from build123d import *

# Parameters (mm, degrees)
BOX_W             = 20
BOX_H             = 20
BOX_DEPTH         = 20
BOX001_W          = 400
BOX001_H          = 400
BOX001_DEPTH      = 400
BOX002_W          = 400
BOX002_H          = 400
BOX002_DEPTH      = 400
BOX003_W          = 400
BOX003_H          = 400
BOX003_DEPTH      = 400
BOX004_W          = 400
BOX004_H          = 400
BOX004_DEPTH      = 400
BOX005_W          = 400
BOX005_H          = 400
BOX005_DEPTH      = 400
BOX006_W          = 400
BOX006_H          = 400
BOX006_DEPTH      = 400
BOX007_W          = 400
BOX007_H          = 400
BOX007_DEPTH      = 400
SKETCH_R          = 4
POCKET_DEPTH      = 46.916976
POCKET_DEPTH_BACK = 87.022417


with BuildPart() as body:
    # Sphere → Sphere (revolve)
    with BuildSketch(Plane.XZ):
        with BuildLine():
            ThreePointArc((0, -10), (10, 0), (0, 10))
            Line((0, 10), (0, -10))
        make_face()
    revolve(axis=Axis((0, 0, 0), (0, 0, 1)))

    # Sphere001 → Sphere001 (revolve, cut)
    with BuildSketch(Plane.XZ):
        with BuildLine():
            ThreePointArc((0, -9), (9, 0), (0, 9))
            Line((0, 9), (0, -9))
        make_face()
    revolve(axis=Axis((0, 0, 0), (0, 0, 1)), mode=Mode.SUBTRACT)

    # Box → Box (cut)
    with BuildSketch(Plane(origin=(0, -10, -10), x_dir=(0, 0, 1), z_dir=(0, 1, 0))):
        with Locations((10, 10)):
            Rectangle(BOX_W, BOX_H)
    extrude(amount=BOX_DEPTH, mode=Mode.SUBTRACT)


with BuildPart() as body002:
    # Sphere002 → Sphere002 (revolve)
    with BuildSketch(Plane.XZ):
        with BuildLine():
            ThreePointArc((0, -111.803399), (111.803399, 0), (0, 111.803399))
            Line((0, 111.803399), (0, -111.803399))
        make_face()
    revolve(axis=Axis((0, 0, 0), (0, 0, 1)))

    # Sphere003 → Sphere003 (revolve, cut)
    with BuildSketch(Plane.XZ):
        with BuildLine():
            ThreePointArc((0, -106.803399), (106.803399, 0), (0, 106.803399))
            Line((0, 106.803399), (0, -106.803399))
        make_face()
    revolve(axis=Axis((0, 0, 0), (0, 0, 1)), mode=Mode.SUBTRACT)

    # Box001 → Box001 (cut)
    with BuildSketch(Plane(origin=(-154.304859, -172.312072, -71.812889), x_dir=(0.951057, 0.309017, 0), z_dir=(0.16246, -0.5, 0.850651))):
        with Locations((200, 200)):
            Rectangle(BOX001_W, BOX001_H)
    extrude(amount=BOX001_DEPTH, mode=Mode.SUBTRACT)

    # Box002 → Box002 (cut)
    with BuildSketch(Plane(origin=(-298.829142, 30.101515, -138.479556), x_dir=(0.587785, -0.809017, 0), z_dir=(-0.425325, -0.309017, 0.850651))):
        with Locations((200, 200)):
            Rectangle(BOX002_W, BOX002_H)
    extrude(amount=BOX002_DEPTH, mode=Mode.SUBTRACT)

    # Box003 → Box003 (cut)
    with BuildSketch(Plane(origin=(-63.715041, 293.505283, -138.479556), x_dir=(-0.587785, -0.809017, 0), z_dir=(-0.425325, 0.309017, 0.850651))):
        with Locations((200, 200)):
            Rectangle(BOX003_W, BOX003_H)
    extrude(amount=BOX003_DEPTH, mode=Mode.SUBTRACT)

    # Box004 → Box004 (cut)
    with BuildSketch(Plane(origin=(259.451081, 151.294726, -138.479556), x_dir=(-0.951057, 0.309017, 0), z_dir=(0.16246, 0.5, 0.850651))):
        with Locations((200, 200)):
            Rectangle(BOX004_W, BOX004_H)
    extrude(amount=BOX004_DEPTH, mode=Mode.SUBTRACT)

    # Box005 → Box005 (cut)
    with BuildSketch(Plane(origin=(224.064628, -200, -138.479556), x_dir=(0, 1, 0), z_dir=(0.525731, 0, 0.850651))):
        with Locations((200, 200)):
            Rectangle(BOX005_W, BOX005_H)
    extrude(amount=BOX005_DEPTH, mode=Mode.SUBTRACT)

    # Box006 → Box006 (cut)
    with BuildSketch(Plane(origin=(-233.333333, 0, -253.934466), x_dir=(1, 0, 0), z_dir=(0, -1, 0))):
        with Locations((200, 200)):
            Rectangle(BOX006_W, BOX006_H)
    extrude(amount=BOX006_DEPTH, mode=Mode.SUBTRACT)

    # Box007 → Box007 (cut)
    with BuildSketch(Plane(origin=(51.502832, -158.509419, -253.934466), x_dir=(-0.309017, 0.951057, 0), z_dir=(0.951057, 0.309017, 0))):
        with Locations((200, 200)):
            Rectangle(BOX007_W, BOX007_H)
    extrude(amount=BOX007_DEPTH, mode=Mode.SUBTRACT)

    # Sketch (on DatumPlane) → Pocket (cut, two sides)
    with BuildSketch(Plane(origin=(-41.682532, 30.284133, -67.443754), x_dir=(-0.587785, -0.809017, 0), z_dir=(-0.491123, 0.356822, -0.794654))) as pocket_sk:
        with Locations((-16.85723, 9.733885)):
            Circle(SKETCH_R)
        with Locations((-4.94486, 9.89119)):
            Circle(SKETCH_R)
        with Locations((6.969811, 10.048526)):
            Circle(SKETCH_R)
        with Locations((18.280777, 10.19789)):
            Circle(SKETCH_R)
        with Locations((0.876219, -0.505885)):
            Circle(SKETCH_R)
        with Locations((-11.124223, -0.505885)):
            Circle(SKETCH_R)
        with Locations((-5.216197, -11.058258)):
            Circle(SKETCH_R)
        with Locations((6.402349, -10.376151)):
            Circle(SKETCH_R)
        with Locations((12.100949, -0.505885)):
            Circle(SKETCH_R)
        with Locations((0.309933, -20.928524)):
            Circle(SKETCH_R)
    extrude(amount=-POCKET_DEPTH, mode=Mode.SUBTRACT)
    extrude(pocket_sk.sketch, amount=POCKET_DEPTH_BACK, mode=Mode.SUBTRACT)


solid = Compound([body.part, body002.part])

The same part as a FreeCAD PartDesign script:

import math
import FreeCAD as App
import Part
import Sketcher
from FreeCAD import Vector
Q = App.Units.Quantity


def add_polygon(sketch, points):
    """Adds a closed chain of lines whose ends are joined by coincident constraints."""
    first, n = sketch.GeometryCount, len(points)
    for a, b in zip(points, points[1:] + points[:1]):
        sketch.addGeometry(Part.LineSegment(App.Vector(*a, 0), App.Vector(*b, 0)), False)
    for i in range(n):
        sketch.addConstraint(Sketcher.Constraint("Coincident", first + i, 2, first + (i + 1) % n, 1))

doc = App.newDocument("Part")
body = doc.addObject("PartDesign::Body", "Body")

# Sketch on XZ plane
sketch1 = body.newObject("Sketcher::SketchObject", "Sketch")
sketch1.AttachmentSupport = (doc.getObject("XZ_Plane"), [""])
sketch1.MapMode = "FlatFace"
sketch1.addGeometry([
    Part.ArcOfCircle(Part.Circle(Vector(0, 0, 0), Vector(0, 0, 1), 10), math.radians(-90), math.radians(90)),
    Part.LineSegment(Vector(0, 10, 0), Vector(0, -10, 0)),
], False)
sketch1.addConstraint([
    Sketcher.Constraint("Coincident", 0, 1, 1, 2),
    Sketcher.Constraint("Coincident", 1, 1, 0, 2),
    Sketcher.Constraint("Vertical", 1),
    Sketcher.Constraint("Coincident", 0, 3, -1, 1),
    Sketcher.Constraint("PointOnObject", 0, 1, -2),
    Sketcher.Constraint("Radius", 0, Q("10 mm")),
])
revolution = body.newObject("PartDesign::Revolution", "Revolution")
revolution.Profile = sketch1
revolution.ReferenceAxis = (sketch1, ["V_Axis"])
revolution.Angle = 360

# Sketch on XZ plane
sketch2 = body.newObject("Sketcher::SketchObject", "Sketch001")
sketch2.AttachmentSupport = (doc.getObject("XZ_Plane"), [""])
sketch2.MapMode = "FlatFace"
sketch2.addGeometry([
    Part.ArcOfCircle(Part.Circle(Vector(0, 0, 0), Vector(0, 0, 1), 9), math.radians(-90), math.radians(90)),
    Part.LineSegment(Vector(0, 9, 0), Vector(0, -9, 0)),
], False)
sketch2.addConstraint([
    Sketcher.Constraint("Coincident", 0, 1, 1, 2),
    Sketcher.Constraint("Coincident", 1, 1, 0, 2),
    Sketcher.Constraint("Vertical", 1),
    Sketcher.Constraint("Coincident", 0, 3, -1, 1),
    Sketcher.Constraint("PointOnObject", 0, 1, -2),
    Sketcher.Constraint("Radius", 0, Q("9 mm")),
])
groove = body.newObject("PartDesign::Groove", "Groove")
groove.Profile = sketch2
groove.ReferenceAxis = (sketch2, ["V_Axis"])
groove.Angle = 360

# Sketch on XZ plane
sketch3 = body.newObject("Sketcher::SketchObject", "Sketch002")
sketch3.AttachmentSupport = (doc.getObject("XZ_Plane"), [""])
sketch3.MapMode = "FlatFace"
sketch3.AttachmentOffset = App.Placement(Vector(0, 0, 10), App.Rotation())
add_polygon(sketch3, [(20, -10), (0, -10), (0, 10), (20, 10)])  # lines 0-3
sketch3.addConstraint([
    Sketcher.Constraint("Horizontal", 0),
    Sketcher.Constraint("Vertical", 1),
    Sketcher.Constraint("Horizontal", 2),
    Sketcher.Constraint("Vertical", 3),
    Sketcher.Constraint("Symmetric", 0, 2, 1, 2, -1, 1),
    Sketcher.Constraint("Equal", 2, 1),
    Sketcher.Constraint("DistanceX", 0, 2, 0, 1, Q("20 mm")),
])
pocket1 = body.newObject("PartDesign::Pocket", "Pocket")
pocket1.Profile = sketch3
pocket1.Length = 20
body2 = doc.addObject("PartDesign::Body", "Body001")

# Sketch on XZ plane
sketch4 = body2.newObject("Sketcher::SketchObject", "Sketch003")
sketch4.AttachmentSupport = (doc.getObject("XZ_Plane001"), [""])
sketch4.MapMode = "FlatFace"
sketch4.addGeometry([
    Part.ArcOfCircle(Part.Circle(Vector(0, 0, 0), Vector(0, 0, 1), 111.803399), math.radians(-90), math.radians(90)),
    Part.LineSegment(Vector(0, 111.803399, 0), Vector(0, -111.803399, 0)),
], False)
sketch4.addConstraint([
    Sketcher.Constraint("Coincident", 0, 1, 1, 2),
    Sketcher.Constraint("Coincident", 1, 1, 0, 2),
    Sketcher.Constraint("Vertical", 1),
    Sketcher.Constraint("Coincident", 0, 3, -1, 1),
    Sketcher.Constraint("PointOnObject", 0, 1, -2),
    Sketcher.Constraint("Radius", 0, Q("111.803399 mm")),
])
revolution2 = body2.newObject("PartDesign::Revolution", "Revolution001")
revolution2.Profile = sketch4
revolution2.ReferenceAxis = (sketch4, ["V_Axis"])
revolution2.Angle = 360

# Sketch on XZ plane
sketch5 = body2.newObject("Sketcher::SketchObject", "Sketch004")
sketch5.AttachmentSupport = (doc.getObject("XZ_Plane001"), [""])
sketch5.MapMode = "FlatFace"
sketch5.addGeometry([
    Part.ArcOfCircle(Part.Circle(Vector(0, 0, 0), Vector(0, 0, 1), 106.803399), math.radians(-90), math.radians(90)),
    Part.LineSegment(Vector(0, 106.803399, 0), Vector(0, -106.803399, 0)),
], False)
sketch5.addConstraint([
    Sketcher.Constraint("Coincident", 0, 1, 1, 2),
    Sketcher.Constraint("Coincident", 1, 1, 0, 2),
    Sketcher.Constraint("Vertical", 1),
    Sketcher.Constraint("Coincident", 0, 3, -1, 1),
    Sketcher.Constraint("PointOnObject", 0, 1, -2),
    Sketcher.Constraint("Radius", 0, Q("106.803399 mm")),
])
groove2 = body2.newObject("PartDesign::Groove", "Groove001")
groove2.Profile = sketch5
groove2.ReferenceAxis = (sketch5, ["V_Axis"])
groove2.Angle = 360

# Sketch on an angled plane
sketch6 = body2.newObject("Sketcher::SketchObject", "Sketch005")
sketch6.Placement = App.Placement(Vector(-154.304859, -172.312072, -71.812889), App.Rotation(Vector(0.951056525, 0.309016967, -0.000000187), Vector(-0.262865449, 0.809017062, 0.52573106), Vector(0.16245997, -0.499999906, 0.85065084), "ZXY"))
add_polygon(sketch6, [(0, 400), (0, 0), (400, 0), (400, 400)])  # lines 0-3
sketch6.addConstraint([
    Sketcher.Constraint("Vertical", 0),
    Sketcher.Constraint("Horizontal", 1),
    Sketcher.Constraint("Vertical", 2),
    Sketcher.Constraint("Horizontal", 3),
    Sketcher.Constraint("Coincident", 0, 2, -1, 1),
    Sketcher.Constraint("Equal", 3, 0),
    Sketcher.Constraint("DistanceX", 1, 1, 1, 2, Q("400 mm")),
])
pocket2 = body2.newObject("PartDesign::Pocket", "Pocket001")
pocket2.Profile = sketch6
pocket2.Length = 400
pocket2.Reversed = True

# Sketch on an angled plane
sketch7 = body2.newObject("Sketcher::SketchObject", "Sketch006")
sketch7.Placement = App.Placement(Vector(-298.829142, 30.101515, -138.479556), App.Rotation(Vector(0.587785234, -0.809017008, -0.000000299), Vector(0.688191224, 0.499999973, 0.525730792), Vector(-0.425325003, -0.309017002, 0.850651006), "ZXY"))
add_polygon(sketch7, [(0, 400), (0, 0), (400, 0), (400, 400)])  # lines 0-3
sketch7.addConstraint([
    Sketcher.Constraint("Vertical", 0),
    Sketcher.Constraint("Horizontal", 1),
    Sketcher.Constraint("Vertical", 2),
    Sketcher.Constraint("Horizontal", 3),
    Sketcher.Constraint("Coincident", 0, 2, -1, 1),
    Sketcher.Constraint("Equal", 3, 0),
    Sketcher.Constraint("DistanceX", 1, 1, 1, 2, Q("400 mm")),
])
pocket3 = body2.newObject("PartDesign::Pocket", "Pocket002")
pocket3.Profile = sketch7
pocket3.Length = 400
pocket3.Reversed = True

# Sketch on an angled plane
sketch8 = body2.newObject("Sketcher::SketchObject", "Sketch007")
sketch8.Placement = App.Placement(Vector(-63.715041, 293.505283, -138.479556), App.Rotation(Vector(-0.587785234, -0.809017008, 0.000000299), Vector(0.688191224, -0.499999973, 0.525730792), Vector(-0.425325003, 0.309017002, 0.850651006), "ZXY"))
add_polygon(sketch8, [(0, 400), (0, 0), (400, 0), (400, 400)])  # lines 0-3
sketch8.addConstraint([
    Sketcher.Constraint("Vertical", 0),
    Sketcher.Constraint("Horizontal", 1),
    Sketcher.Constraint("Vertical", 2),
    Sketcher.Constraint("Horizontal", 3),
    Sketcher.Constraint("Coincident", 0, 2, -1, 1),
    Sketcher.Constraint("Equal", 3, 0),
    Sketcher.Constraint("DistanceX", 1, 1, 1, 2, Q("400 mm")),
])
pocket4 = body2.newObject("PartDesign::Pocket", "Pocket003")
pocket4.Profile = sketch8
pocket4.Length = 400
pocket4.Reversed = True

# Sketch on an angled plane
sketch9 = body2.newObject("Sketcher::SketchObject", "Sketch008")
sketch9.Placement = App.Placement(Vector(259.451081, 151.294726, -138.479556), App.Rotation(Vector(-0.951056525, 0.309016967, 0.000000187), Vector(-0.262865449, -0.809017062, 0.52573106), Vector(0.16245997, 0.499999906, 0.85065084), "ZXY"))
add_polygon(sketch9, [(0, 400), (0, 0), (400, 0), (400, 400)])  # lines 0-3
sketch9.addConstraint([
    Sketcher.Constraint("Vertical", 0),
    Sketcher.Constraint("Horizontal", 1),
    Sketcher.Constraint("Vertical", 2),
    Sketcher.Constraint("Horizontal", 3),
    Sketcher.Constraint("Coincident", 0, 2, -1, 1),
    Sketcher.Constraint("Equal", 3, 0),
    Sketcher.Constraint("DistanceX", 1, 1, 1, 2, Q("400 mm")),
])
pocket5 = body2.newObject("PartDesign::Pocket", "Pocket004")
pocket5.Profile = sketch9
pocket5.Length = 400
pocket5.Reversed = True

# Sketch on an angled plane
sketch10 = body2.newObject("Sketcher::SketchObject", "Sketch009")
sketch10.Placement = App.Placement(Vector(224.064628, -200, -138.479556), App.Rotation(Vector(0, 1, 0), Vector(-0.850650911, 0, 0.525730945), Vector(0.525730945, 0, 0.850650911), "ZXY"))
add_polygon(sketch10, [(0, 400), (0, 0), (400, 0), (400, 400)])  # lines 0-3
sketch10.addConstraint([
    Sketcher.Constraint("Vertical", 0),
    Sketcher.Constraint("Horizontal", 1),
    Sketcher.Constraint("Vertical", 2),
    Sketcher.Constraint("Horizontal", 3),
    Sketcher.Constraint("Coincident", 0, 2, -1, 1),
    Sketcher.Constraint("Equal", 3, 0),
    Sketcher.Constraint("DistanceX", 1, 1, 1, 2, Q("400 mm")),
])
pocket6 = body2.newObject("PartDesign::Pocket", "Pocket005")
pocket6.Profile = sketch10
pocket6.Length = 400
pocket6.Reversed = True

# Sketch on XZ plane
sketch11 = body2.newObject("Sketcher::SketchObject", "Sketch010")
sketch11.AttachmentSupport = (doc.getObject("XZ_Plane001"), [""])
sketch11.MapMode = "FlatFace"
add_polygon(sketch11, [(-233.333333, 146.065534), (-233.333333, -253.934466), (166.666667, -253.934466), (166.666667, 146.065534)])  # lines 0-3
sketch11.addConstraint([
    Sketcher.Constraint("Vertical", 0),
    Sketcher.Constraint("Horizontal", 1),
    Sketcher.Constraint("Vertical", 2),
    Sketcher.Constraint("Horizontal", 3),
    Sketcher.Constraint("Equal", 3, 0),
    Sketcher.Constraint("DistanceX", 1, 1, 1, 2, Q("400 mm")),
    Sketcher.Constraint("DistanceX", 0, 2, -1, 1, Q("233.333333 mm")),
    Sketcher.Constraint("DistanceY", 0, 2, -1, 1, Q("253.934466 mm")),
])
pocket7 = body2.newObject("PartDesign::Pocket", "Pocket006")
pocket7.Profile = sketch11
pocket7.Length = 400
pocket7.Reversed = True

# Sketch on an angled plane
sketch12 = body2.newObject("Sketcher::SketchObject", "Sketch011")
sketch12.Placement = App.Placement(Vector(51.502832, -158.509419, -253.934466), App.Rotation(Vector(-0.309016857, 0.951056561, 0), Vector(0, 0, 1), Vector(0.951056561, 0.309016857, 0), "ZXY"))
add_polygon(sketch12, [(0, 400), (0, 0), (400, 0), (400, 400)])  # lines 0-3
sketch12.addConstraint([
    Sketcher.Constraint("Vertical", 0),
    Sketcher.Constraint("Horizontal", 1),
    Sketcher.Constraint("Vertical", 2),
    Sketcher.Constraint("Horizontal", 3),
    Sketcher.Constraint("Coincident", 0, 2, -1, 1),
    Sketcher.Constraint("Equal", 3, 0),
    Sketcher.Constraint("DistanceX", 1, 1, 1, 2, Q("400 mm")),
])
pocket8 = body2.newObject("PartDesign::Pocket", "Pocket007")
pocket8.Profile = sketch12
pocket8.Length = 400
pocket8.Reversed = True

# Sketch on an angled plane
sketch13 = body2.newObject("Sketcher::SketchObject", "Sketch012")
sketch13.Placement = App.Placement(Vector(-41.682532, 30.284133, -67.443754), App.Rotation(Vector(-0.587785247, -0.809016998, -0.000000263), Vector(-0.642889098, 0.467086067, 0.607061951), Vector(-0.491123314, 0.356822228, -0.794654508), "ZXY"))
sketch13.addGeometry([
    Part.Circle(Vector(-16.85723, 9.733885, 0), Vector(0, 0, 1), 4),  # 0
    Part.Circle(Vector(-4.94486, 9.89119, 0), Vector(0, 0, 1), 4),  # 1
    Part.Circle(Vector(6.969811, 10.048526, 0), Vector(0, 0, 1), 4),  # 2
    Part.Circle(Vector(18.280777, 10.19789, 0), Vector(0, 0, 1), 4),  # 3
    Part.Circle(Vector(0.876219, -0.505885, 0), Vector(0, 0, 1), 4),  # 4
    Part.Circle(Vector(-11.124223, -0.505885, 0), Vector(0, 0, 1), 4),  # 5
    Part.Circle(Vector(-5.216197, -11.058258, 0), Vector(0, 0, 1), 4),  # 6
    Part.Circle(Vector(6.402349, -10.376151, 0), Vector(0, 0, 1), 4),  # 7
    Part.Circle(Vector(12.100949, -0.505885, 0), Vector(0, 0, 1), 4),  # 8
    Part.Circle(Vector(0.309933, -20.928524, 0), Vector(0, 0, 1), 4),  # 9
], False)
sketch13.addConstraint([
    Sketcher.Constraint("Equal", 0, 1),
    Sketcher.Constraint("Equal", 1, 2),
    Sketcher.Constraint("Equal", 2, 3),
    Sketcher.Constraint("Equal", 3, 4),
    Sketcher.Constraint("Equal", 4, 5),
    Sketcher.Constraint("Equal", 5, 6),
    Sketcher.Constraint("Equal", 6, 7),
    Sketcher.Constraint("Equal", 7, 8),
    Sketcher.Constraint("Equal", 8, 9),
    Sketcher.Constraint("Horizontal", 4, 3, 5, 3),
    Sketcher.Constraint("Horizontal", 5, 3, 8, 3),
    Sketcher.Constraint("Diameter", 0, Q("8 mm")),
    Sketcher.Constraint("DistanceX", 5, 3, 3, 3, Q("29.405 mm")),
    Sketcher.Constraint("DistanceY", 1, 3, 3, 3, Q("0.3067 mm")),
    Sketcher.Constraint("DistanceX", 7, 3, 8, 3, Q("5.6986 mm")),
    Sketcher.Constraint("DistanceX", 0, 3, -1, 1, Q("16.85723 mm")),
    Sketcher.Constraint("DistanceX", 1, 3, -1, 1, Q("4.94486 mm")),
    Sketcher.Constraint("DistanceY", -1, 1, 1, 3, Q("9.89119 mm")),
    Sketcher.Constraint("DistanceX", -1, 1, 2, 3, Q("6.969811 mm")),
    Sketcher.Constraint("DistanceX", -1, 1, 4, 3, Q("0.876219 mm")),
    Sketcher.Constraint("DistanceX", -1, 1, 7, 3, Q("6.402349 mm")),
    Sketcher.Constraint("DistanceY", 7, 3, -1, 1, Q("10.376151 mm")),
    Sketcher.Constraint("DistanceY", 0, 3, 2, 3, Q("0.314641 mm")),
    Sketcher.Constraint("DistanceY", 4, 3, 2, 3, Q("10.554411 mm")),
    Sketcher.Constraint("DistanceX", 5, 3, 4, 3, Q("12.000442 mm")),
    Sketcher.Constraint("DistanceX", 6, 3, 9, 3, Q("5.52613 mm")),
    Sketcher.Constraint("DistanceY", 9, 3, 4, 3, Q("20.422639 mm")),
    Sketcher.Constraint("DistanceY", -1, 1, 0, 3, Q("9.733885 mm")),
    Sketcher.Constraint("DistanceX", 6, 3, -1, 1, Q("5.216197 mm")),
    Sketcher.Constraint("DistanceY", 6, 3, -1, 1, Q("11.058258 mm")),
])
pocket9 = body2.newObject("PartDesign::Pocket", "Pocket008")
pocket9.Profile = sketch13
pocket9.Type = "ThroughAll"
pocket9.Midplane = True

doc.recompute()
